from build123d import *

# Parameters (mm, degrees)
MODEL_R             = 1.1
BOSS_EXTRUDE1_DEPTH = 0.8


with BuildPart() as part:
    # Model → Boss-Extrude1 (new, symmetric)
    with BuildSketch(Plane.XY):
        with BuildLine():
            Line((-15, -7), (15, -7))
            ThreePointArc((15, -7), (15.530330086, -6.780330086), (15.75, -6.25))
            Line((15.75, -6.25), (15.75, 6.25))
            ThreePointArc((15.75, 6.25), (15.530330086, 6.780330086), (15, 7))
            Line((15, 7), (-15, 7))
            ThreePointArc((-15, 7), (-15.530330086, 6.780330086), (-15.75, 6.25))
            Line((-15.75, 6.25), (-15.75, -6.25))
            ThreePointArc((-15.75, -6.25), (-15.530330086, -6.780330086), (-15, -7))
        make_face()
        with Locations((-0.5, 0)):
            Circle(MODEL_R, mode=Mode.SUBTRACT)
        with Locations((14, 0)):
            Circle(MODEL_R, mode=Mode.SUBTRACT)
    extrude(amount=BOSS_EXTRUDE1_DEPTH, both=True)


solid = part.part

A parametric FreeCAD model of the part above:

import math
import FreeCAD as App
import Part
import Sketcher
from FreeCAD import Vector

doc = App.newDocument("Part")
body = doc.addObject("PartDesign::Body", "Body")

# Sketch on XY plane
sketch1 = body.newObject("Sketcher::SketchObject", "Sketch")
sketch1.AttachmentSupport = (doc.getObject("XY_Plane"), [""])
sketch1.MapMode = "FlatFace"
sketch1.addGeometry([
    Part.LineSegment(Vector(-15, -7, 0), Vector(15, -7, 0)),  # 0
    Part.ArcOfCircle(Part.Circle(Vector(15, -6.2, 0), Vector(0, 0, 1), 0.8), math.radians(-90), math.radians(0)),  # 1
    Part.LineSegment(Vector(15.8, -6.2, 0), Vector(15.8, 6.2, 0)),  # 2
    Part.ArcOfCircle(Part.Circle(Vector(15, 6.2, 0), Vector(0, 0, 1), 0.8), math.radians(0), math.radians(90)),  # 3
    Part.LineSegment(Vector(15, 7, 0), Vector(-15, 7, 0)),  # 4
    Part.ArcOfCircle(Part.Circle(Vector(-15, 6.2, 0), Vector(0, 0, 1), 0.8), math.radians(90), math.radians(180)),  # 5
    Part.LineSegment(Vector(-15.8, 6.2, 0), Vector(-15.8, -6.2, 0)),  # 6
    Part.ArcOfCircle(Part.Circle(Vector(-15, -6.2, 0), Vector(0, 0, 1), 0.8), math.radians(180), math.radians(270)),  # 7
    Part.Circle(Vector(-0.5, 0, 0), Vector(0, 0, 1), 1.1),  # 8
    Part.Circle(Vector(14, 0, 0), Vector(0, 0, 1), 1.1),  # 9
], False)
sketch1.addConstraint([
    Sketcher.Constraint("Tangent", 0, 2, 1, 1),
    Sketcher.Constraint("Tangent", 1, 2, 2, 1),
    Sketcher.Constraint("Tangent", 2, 2, 3, 1),
    Sketcher.Constraint("Tangent", 3, 2, 4, 1),
    Sketcher.Constraint("Tangent", 4, 2, 5, 1),
    Sketcher.Constraint("Tangent", 5, 2, 6, 1),
    Sketcher.Constraint("Tangent", 6, 2, 7, 1),
    Sketcher.Constraint("Tangent", 7, 2, 0, 1),
    Sketcher.Constraint("Horizontal", 0),
    Sketcher.Constraint("Vertical", 2),
    Sketcher.Constraint("Horizontal", 4),
    Sketcher.Constraint("Vertical", 6),
    Sketcher.Constraint("Equal", 1, 3),
    Sketcher.Constraint("Equal", 3, 5),
    Sketcher.Constraint("Equal", 5, 7),
    Sketcher.Constraint("Equal", 8, 9),
    Sketcher.Constraint("Symmetric", 1, 3, 5, 3, -1, 1),
    Sketcher.Constraint("PointOnObject", 8, 3, -1),
    Sketcher.Constraint("PointOnObject", 9, 3, -1),
    Sketcher.Constraint("Diameter", 8, 2.2),
    Sketcher.Constraint("DistanceX", 0, 1, 0, 2, 30.0),
    Sketcher.Constraint("Radius", 1, 0.75),
    Sketcher.Constraint("DistanceY", 2, 1, 2, 2, 12.5),
    Sketcher.Constraint("DistanceX", -1, 1, 9, 3, 14.0),
    Sketcher.Constraint("DistanceX", 8, 3, -1, 1, 0.5),
])
pad1 = body.newObject("PartDesign::Pad", "Pad")
pad1.Profile = sketch1
pad1.Length = 1.6
pad1.Midplane = True

doc.recompute()
